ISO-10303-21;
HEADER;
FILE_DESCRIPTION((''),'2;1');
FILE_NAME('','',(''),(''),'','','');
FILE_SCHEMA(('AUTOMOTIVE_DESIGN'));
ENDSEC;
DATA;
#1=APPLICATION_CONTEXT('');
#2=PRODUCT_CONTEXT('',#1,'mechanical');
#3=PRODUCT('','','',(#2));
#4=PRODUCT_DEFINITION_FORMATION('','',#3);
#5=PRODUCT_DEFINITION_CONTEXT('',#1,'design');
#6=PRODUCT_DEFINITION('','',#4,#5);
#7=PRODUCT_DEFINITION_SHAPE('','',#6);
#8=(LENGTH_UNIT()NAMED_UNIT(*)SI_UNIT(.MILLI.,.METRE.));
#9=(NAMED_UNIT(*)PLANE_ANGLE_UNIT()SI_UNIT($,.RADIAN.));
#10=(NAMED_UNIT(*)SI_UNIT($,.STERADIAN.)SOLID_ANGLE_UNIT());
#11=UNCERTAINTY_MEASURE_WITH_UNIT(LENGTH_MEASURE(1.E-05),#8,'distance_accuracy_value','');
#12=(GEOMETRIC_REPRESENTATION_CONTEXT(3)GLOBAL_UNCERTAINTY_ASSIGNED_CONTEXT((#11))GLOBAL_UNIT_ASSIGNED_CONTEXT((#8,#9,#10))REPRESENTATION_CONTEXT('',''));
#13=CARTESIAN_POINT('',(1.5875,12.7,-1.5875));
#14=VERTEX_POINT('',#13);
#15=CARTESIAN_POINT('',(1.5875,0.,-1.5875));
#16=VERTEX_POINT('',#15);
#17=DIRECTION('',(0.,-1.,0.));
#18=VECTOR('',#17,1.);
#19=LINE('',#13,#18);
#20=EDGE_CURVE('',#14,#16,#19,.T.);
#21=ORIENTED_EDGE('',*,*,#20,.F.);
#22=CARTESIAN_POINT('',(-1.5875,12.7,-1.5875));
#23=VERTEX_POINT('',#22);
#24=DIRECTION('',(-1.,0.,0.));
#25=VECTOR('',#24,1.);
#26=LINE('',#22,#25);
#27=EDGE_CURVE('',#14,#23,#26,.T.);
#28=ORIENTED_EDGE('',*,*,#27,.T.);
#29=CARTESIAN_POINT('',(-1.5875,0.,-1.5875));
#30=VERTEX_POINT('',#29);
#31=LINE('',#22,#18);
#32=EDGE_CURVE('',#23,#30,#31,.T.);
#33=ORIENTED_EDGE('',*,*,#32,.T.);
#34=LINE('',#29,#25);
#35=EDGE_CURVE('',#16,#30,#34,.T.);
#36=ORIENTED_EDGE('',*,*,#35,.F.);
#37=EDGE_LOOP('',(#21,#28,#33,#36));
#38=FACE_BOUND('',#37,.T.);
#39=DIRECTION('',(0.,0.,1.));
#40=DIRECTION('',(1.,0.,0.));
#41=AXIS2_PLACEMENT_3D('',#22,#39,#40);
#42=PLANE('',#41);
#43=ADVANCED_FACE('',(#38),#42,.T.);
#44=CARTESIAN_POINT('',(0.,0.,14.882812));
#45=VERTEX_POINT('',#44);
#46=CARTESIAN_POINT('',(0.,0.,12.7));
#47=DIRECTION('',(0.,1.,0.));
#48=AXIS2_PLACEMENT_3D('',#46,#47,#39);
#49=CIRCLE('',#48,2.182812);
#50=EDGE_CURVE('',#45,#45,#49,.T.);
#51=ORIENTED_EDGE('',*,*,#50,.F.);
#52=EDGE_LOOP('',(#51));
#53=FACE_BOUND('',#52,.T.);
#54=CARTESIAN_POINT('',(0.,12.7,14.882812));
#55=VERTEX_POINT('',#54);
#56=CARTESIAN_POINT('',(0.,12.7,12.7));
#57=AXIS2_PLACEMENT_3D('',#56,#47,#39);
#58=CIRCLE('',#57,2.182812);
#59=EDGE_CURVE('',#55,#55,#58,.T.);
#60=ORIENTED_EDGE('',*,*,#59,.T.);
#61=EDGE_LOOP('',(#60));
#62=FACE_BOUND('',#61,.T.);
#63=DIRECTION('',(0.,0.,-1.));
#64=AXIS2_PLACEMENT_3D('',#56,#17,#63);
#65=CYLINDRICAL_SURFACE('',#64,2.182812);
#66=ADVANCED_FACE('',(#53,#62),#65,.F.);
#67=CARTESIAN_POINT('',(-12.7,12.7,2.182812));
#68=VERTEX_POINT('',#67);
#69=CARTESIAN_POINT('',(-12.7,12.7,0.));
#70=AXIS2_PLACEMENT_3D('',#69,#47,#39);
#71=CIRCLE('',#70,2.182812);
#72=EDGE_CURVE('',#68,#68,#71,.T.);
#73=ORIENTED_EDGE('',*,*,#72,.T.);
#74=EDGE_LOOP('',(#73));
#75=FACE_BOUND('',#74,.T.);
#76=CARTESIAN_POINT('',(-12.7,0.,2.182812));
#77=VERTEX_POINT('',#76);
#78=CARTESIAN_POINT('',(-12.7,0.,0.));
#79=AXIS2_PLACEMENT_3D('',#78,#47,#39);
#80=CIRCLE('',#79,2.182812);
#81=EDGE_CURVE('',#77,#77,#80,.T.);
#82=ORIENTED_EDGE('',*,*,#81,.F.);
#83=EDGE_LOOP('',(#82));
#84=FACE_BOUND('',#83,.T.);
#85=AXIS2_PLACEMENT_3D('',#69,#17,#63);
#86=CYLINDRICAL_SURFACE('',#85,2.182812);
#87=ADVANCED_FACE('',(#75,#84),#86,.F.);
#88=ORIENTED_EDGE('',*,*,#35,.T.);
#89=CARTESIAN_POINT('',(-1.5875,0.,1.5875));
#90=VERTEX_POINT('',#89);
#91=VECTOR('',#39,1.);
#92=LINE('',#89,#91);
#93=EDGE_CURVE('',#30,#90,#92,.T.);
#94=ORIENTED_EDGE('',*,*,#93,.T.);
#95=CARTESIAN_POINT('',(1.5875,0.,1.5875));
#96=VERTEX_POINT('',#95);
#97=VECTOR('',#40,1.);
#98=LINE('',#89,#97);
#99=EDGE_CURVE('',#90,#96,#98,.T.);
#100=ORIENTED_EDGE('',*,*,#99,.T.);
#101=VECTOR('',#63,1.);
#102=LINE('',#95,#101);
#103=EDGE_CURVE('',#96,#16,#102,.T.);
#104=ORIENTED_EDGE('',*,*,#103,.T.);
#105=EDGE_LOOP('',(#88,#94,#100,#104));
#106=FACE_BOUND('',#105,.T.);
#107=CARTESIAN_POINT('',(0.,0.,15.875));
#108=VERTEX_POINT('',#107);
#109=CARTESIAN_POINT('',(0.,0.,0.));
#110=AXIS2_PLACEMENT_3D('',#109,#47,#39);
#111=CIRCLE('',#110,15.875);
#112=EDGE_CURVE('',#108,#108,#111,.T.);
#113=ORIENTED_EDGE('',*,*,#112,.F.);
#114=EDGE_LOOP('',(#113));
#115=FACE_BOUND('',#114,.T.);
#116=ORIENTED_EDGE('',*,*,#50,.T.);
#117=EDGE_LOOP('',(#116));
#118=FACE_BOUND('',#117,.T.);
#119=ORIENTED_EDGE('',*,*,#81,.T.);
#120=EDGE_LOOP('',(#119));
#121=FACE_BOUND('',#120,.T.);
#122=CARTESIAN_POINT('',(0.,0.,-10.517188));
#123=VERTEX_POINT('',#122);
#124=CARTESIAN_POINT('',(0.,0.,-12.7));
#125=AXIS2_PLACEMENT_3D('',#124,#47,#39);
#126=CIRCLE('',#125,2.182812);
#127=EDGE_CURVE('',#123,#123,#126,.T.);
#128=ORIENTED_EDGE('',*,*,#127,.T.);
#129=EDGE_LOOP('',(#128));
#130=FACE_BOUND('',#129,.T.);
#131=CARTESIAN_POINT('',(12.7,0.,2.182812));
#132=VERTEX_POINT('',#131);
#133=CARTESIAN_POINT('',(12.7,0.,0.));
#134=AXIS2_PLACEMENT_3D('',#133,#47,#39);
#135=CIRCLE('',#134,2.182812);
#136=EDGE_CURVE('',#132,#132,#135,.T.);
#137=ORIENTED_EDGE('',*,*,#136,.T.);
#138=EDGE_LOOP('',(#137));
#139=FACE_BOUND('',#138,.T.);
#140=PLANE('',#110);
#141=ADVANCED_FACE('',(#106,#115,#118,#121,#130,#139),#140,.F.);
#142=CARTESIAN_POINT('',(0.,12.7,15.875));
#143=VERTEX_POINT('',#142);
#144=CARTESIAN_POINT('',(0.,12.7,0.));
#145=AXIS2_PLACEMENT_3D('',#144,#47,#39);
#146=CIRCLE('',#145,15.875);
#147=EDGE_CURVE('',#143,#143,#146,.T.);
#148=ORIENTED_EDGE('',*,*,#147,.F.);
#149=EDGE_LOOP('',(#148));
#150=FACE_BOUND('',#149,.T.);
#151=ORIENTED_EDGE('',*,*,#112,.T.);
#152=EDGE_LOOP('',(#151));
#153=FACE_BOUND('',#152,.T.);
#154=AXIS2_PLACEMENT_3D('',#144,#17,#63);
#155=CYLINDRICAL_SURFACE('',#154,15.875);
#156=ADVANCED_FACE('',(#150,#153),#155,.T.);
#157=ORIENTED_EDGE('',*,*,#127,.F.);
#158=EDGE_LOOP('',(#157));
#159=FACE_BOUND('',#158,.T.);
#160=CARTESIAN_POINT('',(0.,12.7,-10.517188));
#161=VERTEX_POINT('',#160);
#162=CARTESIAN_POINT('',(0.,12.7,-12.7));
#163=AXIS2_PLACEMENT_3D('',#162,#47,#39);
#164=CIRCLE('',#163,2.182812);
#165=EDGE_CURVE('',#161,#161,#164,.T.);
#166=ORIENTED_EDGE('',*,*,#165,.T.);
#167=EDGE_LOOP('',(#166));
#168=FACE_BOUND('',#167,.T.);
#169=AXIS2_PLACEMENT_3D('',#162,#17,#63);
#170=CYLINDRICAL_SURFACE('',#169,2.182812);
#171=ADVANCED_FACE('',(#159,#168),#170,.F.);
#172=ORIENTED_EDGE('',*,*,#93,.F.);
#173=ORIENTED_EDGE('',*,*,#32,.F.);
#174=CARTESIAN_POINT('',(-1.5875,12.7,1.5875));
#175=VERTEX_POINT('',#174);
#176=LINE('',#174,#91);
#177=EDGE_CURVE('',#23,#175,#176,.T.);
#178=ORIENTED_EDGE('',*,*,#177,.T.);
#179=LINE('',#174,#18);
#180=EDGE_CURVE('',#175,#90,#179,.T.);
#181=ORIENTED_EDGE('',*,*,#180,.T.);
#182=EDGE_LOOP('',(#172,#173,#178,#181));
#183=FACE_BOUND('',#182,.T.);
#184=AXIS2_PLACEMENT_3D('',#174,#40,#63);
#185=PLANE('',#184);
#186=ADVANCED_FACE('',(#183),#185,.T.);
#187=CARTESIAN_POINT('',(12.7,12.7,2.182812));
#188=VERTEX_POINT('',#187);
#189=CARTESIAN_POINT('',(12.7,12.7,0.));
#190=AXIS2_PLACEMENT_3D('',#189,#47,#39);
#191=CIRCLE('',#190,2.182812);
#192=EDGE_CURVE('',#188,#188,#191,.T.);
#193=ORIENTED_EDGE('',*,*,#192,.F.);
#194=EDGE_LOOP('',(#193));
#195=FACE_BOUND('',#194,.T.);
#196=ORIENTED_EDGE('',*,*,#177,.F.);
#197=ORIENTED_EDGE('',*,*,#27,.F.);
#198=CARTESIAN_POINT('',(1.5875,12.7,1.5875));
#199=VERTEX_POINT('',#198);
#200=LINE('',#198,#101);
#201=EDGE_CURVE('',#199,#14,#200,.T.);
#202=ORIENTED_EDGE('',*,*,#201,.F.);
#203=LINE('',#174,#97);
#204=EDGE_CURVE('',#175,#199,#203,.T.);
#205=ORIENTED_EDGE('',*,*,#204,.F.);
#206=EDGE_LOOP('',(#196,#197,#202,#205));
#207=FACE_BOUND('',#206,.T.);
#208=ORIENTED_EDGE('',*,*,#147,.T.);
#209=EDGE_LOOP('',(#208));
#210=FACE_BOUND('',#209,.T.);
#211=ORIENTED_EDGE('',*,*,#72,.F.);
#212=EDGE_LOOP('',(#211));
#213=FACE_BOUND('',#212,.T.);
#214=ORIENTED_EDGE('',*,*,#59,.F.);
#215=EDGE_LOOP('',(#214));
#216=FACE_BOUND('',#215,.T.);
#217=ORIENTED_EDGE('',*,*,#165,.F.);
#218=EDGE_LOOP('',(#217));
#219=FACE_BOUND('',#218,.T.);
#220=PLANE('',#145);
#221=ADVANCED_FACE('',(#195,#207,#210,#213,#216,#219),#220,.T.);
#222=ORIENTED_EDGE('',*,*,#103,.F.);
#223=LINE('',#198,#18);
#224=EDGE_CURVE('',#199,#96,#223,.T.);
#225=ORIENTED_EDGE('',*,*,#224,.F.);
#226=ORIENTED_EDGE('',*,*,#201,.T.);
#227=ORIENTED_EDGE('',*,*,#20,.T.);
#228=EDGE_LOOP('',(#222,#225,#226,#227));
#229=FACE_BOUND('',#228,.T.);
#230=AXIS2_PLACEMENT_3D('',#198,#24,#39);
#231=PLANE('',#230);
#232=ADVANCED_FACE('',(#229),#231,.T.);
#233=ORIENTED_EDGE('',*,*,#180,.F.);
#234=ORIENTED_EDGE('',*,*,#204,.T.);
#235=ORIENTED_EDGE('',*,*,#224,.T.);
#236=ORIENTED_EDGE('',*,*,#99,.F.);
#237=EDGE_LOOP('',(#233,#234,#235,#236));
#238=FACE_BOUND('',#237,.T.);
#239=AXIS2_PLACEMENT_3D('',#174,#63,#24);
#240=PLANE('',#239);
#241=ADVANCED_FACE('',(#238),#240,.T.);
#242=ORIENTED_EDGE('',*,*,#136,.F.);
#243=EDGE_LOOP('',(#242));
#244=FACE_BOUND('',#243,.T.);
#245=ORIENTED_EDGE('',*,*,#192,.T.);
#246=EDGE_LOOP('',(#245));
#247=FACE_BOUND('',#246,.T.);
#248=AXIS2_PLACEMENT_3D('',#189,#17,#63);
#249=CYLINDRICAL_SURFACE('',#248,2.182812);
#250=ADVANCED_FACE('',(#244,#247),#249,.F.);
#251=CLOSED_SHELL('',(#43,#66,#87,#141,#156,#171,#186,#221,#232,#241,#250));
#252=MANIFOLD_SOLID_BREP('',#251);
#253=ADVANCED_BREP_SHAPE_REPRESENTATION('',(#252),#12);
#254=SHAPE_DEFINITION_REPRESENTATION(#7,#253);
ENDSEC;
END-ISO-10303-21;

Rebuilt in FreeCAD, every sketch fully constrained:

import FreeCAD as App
import Part
import Sketcher

V = App.Vector
Q = App.Units.Quantity


def add_polygon(sketch, points):
    """Adds a closed chain of lines whose ends are joined by coincident constraints."""
    first, n = sketch.GeometryCount, len(points)
    for a, b in zip(points, points[1:] + points[:1]):
        sketch.addGeometry(Part.LineSegment(App.Vector(*a, 0), App.Vector(*b, 0)), False)
    for i in range(n):
        sketch.addConstraint(Sketcher.Constraint("Coincident", first + i, 2, first + (i + 1) % n, 1))

doc = App.newDocument("Part")
body = doc.addObject("PartDesign::Body", "Body")

# Sketch on XZ plane
sketch1 = body.newObject("Sketcher::SketchObject", "Sketch")
sketch1.AttachmentSupport = (doc.getObject("XZ_Plane"), [""])
sketch1.MapMode = "FlatFace"
sketch1.addGeometry(Part.Circle(V(0, 0, 0), V(0, 0, 1), 15.9), False)  # 0
sketch1.addGeometry(Part.Circle(V(0, -12.7, 0), V(0, 0, 1), 2.2), False)  # 1
sketch1.addGeometry(Part.Circle(V(-12.7, 0, 0), V(0, 0, 1), 2.2), False)  # 2
sketch1.addGeometry(Part.Circle(V(12.7, 0, 0), V(0, 0, 1), 2.2), False)  # 3
add_polygon(sketch1, [(1.6, 1.6), (-1.6, 1.6), (-1.6, -1.6), (1.6, -1.6)])  # lines 4-7
sketch1.addGeometry(Part.Circle(V(0, 12.7, 0), V(0, 0, 1), 2.2), False)  # 8
sketch1.addConstraint([
    Sketcher.Constraint("Horizontal", 4),
    Sketcher.Constraint("Vertical", 5),
    Sketcher.Constraint("Horizontal", 6),
    Sketcher.Constraint("Vertical", 7),
    Sketcher.Constraint("Coincident", 0, 3, -1, 1),
    Sketcher.Constraint("Equal", 1, 2),
    Sketcher.Constraint("Equal", 2, 3),
    Sketcher.Constraint("Equal", 3, 8),
    Sketcher.Constraint("Symmetric", 2, 3, 3, 3, -1, 1),
    Sketcher.Constraint("Symmetric", 1, 3, 8, 3, -1, 1),
    Sketcher.Constraint("Symmetric", 4, 2, 6, 2, -1, 1),
    Sketcher.Constraint("PointOnObject", 1, 3, -2),
    Sketcher.Constraint("PointOnObject", 2, 3, -1),
    Sketcher.Constraint("Equal", 6, 5),
    Sketcher.Constraint("Diameter", 0, Q("1.25 in")),
    Sketcher.Constraint("Diameter", 1, Q("0.171875 in")),
    Sketcher.Constraint("DistanceX", 2, 3, 3, 3, Q("1 in")),
    Sketcher.Constraint("DistanceY", 1, 3, 8, 3, Q("1 in")),
    Sketcher.Constraint("DistanceX", 4, 2, 4, 1, Q("0.125 in")),
])
pad1 = body.newObject("PartDesign::Pad", "Pad")
pad1.Profile = sketch1
pad1.Length = Q("0.5 in")
pad1.Reversed = True

doc.recompute()
